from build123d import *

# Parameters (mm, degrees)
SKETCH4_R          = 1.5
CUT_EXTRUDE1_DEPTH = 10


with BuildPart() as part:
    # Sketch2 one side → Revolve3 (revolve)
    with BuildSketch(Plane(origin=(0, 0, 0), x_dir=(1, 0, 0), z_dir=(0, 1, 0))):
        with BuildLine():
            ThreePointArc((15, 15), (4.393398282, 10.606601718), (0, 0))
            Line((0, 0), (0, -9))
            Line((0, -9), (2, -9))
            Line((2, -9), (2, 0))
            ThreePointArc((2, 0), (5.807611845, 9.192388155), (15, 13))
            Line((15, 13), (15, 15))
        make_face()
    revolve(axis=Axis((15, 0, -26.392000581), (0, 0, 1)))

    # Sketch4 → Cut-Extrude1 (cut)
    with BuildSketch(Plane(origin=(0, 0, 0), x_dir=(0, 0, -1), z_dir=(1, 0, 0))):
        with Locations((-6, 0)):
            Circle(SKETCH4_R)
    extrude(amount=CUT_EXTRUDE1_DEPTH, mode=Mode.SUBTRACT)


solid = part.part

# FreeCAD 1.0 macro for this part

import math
import FreeCAD as App
import Part
import Sketcher

V = App.Vector

doc = App.newDocument("Part")
body = doc.addObject("PartDesign::Body", "Body")

sketch1 = body.newObject("Sketcher::SketchObject", "Sketch")
sketch1.AttachmentSupport = (doc.getObject("XZ_Plane"), [""])
sketch1.MapMode = "FlatFace"
sketch1.addGeometry([
    Part.ArcOfCircle(Part.Circle(V(15, 0, 0), V(0, 0, 1), 15), math.radians(180), math.radians(270)),
    Part.LineSegment(V(0, 0, 0), V(0, 9, 0)),
    Part.LineSegment(V(0, 9, 0), V(2, 9, 0)),
    Part.LineSegment(V(2, 9, 0), V(2, 0, 0)),
    Part.ArcOfCircle(Part.Circle(V(15, 0, 0), V(0, 0, 1), 13), math.radians(-180), math.radians(-90)),
    Part.LineSegment(V(15, -13, 0), V(15, -15, 0)),
], False)
sketch1.addGeometry(Part.LineSegment(V(15, -15, 0), V(15, 9, 0)), True)
sketch1.addConstraint([
    Sketcher.Constraint("Tangent", 0, 1, 1, 1),
    Sketcher.Constraint("Coincident", 1, 2, 2, 1),
    Sketcher.Constraint("Coincident", 2, 2, 3, 1),
    Sketcher.Constraint("Tangent", 3, 2, 4, 1),
    Sketcher.Constraint("Coincident", 4, 2, 5, 1),
    Sketcher.Constraint("Coincident", 5, 2, 0, 2),
    Sketcher.Constraint("Vertical", 1),
    Sketcher.Constraint("Horizontal", 2),
    Sketcher.Constraint("Vertical", 3),
    Sketcher.Constraint("Vertical", 5),
    Sketcher.Constraint("Vertical", 6),
    Sketcher.Constraint("Coincident", 0, 1, -1, 1),
    Sketcher.Constraint("Coincident", 4, 3, 0, 3),
    Sketcher.Constraint("Coincident", 6, 1, 5, 2),
    Sketcher.Constraint("Horizontal", 2, 2, 6, 2),
    Sketcher.Constraint("Vertical", 0, 3, 4, 2),
    Sketcher.Constraint("Radius", 0, 15.0),
    Sketcher.Constraint("Radius", 4, 13.0),
    Sketcher.Constraint("DistanceY", 1, 1, 1, 2, 9.0),
])
revolution = body.newObject("PartDesign::Revolution", "Revolution")
revolution.Profile = sketch1
revolution.ReferenceAxis = (sketch1, ["Axis0"])
revolution.Angle = 360

sketch2 = body.newObject("Sketcher::SketchObject", "Sketch001")
sketch2.AttachmentSupport = (doc.getObject("YZ_Plane"), [""])
sketch2.MapMode = "FlatFace"
sketch2.addGeometry(Part.Circle(V(0, 6, 0), V(0, 0, 1), 1.5), False)
sketch2.addConstraint([
    Sketcher.Constraint("PointOnObject", 0, 3, -2),
    Sketcher.Constraint("Diameter", 0, 3.0),
    Sketcher.Constraint("DistanceY", -1, 1, 0, 3, 6.0),
])
pocket1 = body.newObject("PartDesign::Pocket", "Pocket")
pocket1.Profile = sketch2
pocket1.Length = 10
pocket1.Reversed = True

doc.recompute()
